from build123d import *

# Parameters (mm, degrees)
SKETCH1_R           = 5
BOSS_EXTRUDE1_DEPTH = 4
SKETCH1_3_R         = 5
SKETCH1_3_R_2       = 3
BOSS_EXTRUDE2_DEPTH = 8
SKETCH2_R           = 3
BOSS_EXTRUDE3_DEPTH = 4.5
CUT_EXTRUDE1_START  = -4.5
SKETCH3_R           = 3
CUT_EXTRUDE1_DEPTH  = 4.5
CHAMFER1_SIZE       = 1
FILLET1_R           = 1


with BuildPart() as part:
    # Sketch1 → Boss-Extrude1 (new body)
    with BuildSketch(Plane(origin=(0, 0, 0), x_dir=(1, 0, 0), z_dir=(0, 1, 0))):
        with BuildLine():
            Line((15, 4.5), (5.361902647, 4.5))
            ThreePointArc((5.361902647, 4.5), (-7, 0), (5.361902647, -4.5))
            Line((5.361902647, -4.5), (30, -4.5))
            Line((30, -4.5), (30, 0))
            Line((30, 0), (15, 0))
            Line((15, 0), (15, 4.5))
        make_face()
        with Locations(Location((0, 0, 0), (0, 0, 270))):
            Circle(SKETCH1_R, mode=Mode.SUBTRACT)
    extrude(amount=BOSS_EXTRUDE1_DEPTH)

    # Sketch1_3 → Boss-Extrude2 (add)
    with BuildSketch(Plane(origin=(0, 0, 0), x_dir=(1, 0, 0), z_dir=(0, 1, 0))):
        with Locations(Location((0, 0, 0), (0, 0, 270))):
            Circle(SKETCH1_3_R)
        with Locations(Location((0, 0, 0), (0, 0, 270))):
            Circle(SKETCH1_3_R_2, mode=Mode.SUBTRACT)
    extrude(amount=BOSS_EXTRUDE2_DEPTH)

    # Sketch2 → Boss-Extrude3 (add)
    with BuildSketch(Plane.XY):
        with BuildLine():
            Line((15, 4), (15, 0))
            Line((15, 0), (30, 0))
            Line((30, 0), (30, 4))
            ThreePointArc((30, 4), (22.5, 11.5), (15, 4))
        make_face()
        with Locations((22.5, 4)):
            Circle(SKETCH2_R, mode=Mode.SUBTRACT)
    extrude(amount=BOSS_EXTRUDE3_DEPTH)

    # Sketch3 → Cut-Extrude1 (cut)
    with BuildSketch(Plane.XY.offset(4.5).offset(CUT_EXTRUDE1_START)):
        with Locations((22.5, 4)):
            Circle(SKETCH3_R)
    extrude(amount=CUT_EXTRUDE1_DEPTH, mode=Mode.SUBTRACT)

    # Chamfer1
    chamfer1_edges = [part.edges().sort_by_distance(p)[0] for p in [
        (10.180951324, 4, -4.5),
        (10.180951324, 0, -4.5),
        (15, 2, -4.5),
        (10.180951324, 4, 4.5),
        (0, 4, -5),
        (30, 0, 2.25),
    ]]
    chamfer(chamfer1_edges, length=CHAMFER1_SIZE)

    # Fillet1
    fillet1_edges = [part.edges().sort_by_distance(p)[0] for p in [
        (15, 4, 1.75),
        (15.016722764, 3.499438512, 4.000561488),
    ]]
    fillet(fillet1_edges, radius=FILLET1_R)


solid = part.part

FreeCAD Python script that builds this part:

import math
import FreeCAD as App
import Part
import Sketcher


def edges_at(feature, points):
    """Names of the edges that pass closest to the given points."""
    edges = feature.Shape.Edges
    near = lambda p: min(range(len(edges)), key=lambda i: edges[i].distToShape(Part.Vertex(*p))[0])
    return sorted({f"Edge{near(p) + 1}" for p in points})

doc = App.newDocument("Part")
body = doc.addObject("PartDesign::Body", "Body")

# Sketch on XZ plane
sketch1 = body.newObject("Sketcher::SketchObject", "Sketch")
sketch1.AttachmentSupport = (doc.getObject("XZ_Plane"), [""])
sketch1.MapMode = "FlatFace"
sketch1.addGeometry([
    Part.LineSegment(App.Vector(15, -4.5, 0), App.Vector(5.4, -4.5, 0)),  # 0
    Part.ArcOfCircle(Part.Circle(App.Vector(0, 0, 0), App.Vector(0, 0, 1), 7), math.radians(40), math.radians(320)),  # 1
    Part.LineSegment(App.Vector(5.4, 4.5, 0), App.Vector(30, 4.5, 0)),  # 2
    Part.LineSegment(App.Vector(30, 4.5, 0), App.Vector(30, 0, 0)),  # 3
    Part.LineSegment(App.Vector(30, 0, 0), App.Vector(15, 0, 0)),  # 4
    Part.LineSegment(App.Vector(15, 0, 0), App.Vector(15, -4.5, 0)),  # 5
    Part.Circle(App.Vector(0, 0, 0), App.Vector(0, 0, 1), 5),  # 6
], False)
sketch1.addConstraint([
    Sketcher.Constraint("Coincident", 0, 2, 1, 2),
    Sketcher.Constraint("Coincident", 1, 1, 2, 1),
    Sketcher.Constraint("Coincident", 2, 2, 3, 1),
    Sketcher.Constraint("Coincident", 3, 2, 4, 1),
    Sketcher.Constraint("Coincident", 4, 2, 5, 1),
    Sketcher.Constraint("Coincident", 5, 2, 0, 1),
    Sketcher.Constraint("Horizontal", 0),
    Sketcher.Constraint("Horizontal", 2),
    Sketcher.Constraint("Vertical", 3),
    Sketcher.Constraint("Horizontal", 4),
    Sketcher.Constraint("Vertical", 5),
    Sketcher.Constraint("Coincident", 1, 3, -1, 1),
    Sketcher.Constraint("Coincident", 6, 3, -1, 1),
    Sketcher.Constraint("PointOnObject", 3, 2, -1),
    Sketcher.Constraint("Vertical", 0, 2, 1, 1),
    Sketcher.Constraint("Diameter", 6, 10.0),
    Sketcher.Constraint("Radius", 1, 7.0),
    Sketcher.Constraint("DistanceX", 4, 2, 4, 1, 15.0),
    Sketcher.Constraint("DistanceY", 3, 2, 3, 1, 4.5),
    Sketcher.Constraint("DistanceX", -1, 1, 2, 2, 30.0),
])
pad1 = body.newObject("PartDesign::Pad", "Pad")
pad1.Profile = sketch1
pad1.Length = 4
pad1.Reversed = True

# Sketch on XZ plane
sketch2 = body.newObject("Sketcher::SketchObject", "Sketch001")
sketch2.AttachmentSupport = (doc.getObject("XZ_Plane"), [""])
sketch2.MapMode = "FlatFace"
sketch2.addGeometry([
    Part.Circle(App.Vector(0, 0, 0), App.Vector(0, 0, 1), 5),
    Part.Circle(App.Vector(0, 0, 0), App.Vector(0, 0, 1), 3),
], False)
sketch2.addConstraint([
    Sketcher.Constraint("Coincident", 0, 3, -1, 1),
    Sketcher.Constraint("Coincident", 1, 3, -1, 1),
    Sketcher.Constraint("Diameter", 0, 10.0),
    Sketcher.Constraint("Diameter", 1, 6.0),
])
pad2 = body.newObject("PartDesign::Pad", "Pad001")
pad2.Profile = sketch2
pad2.Length = 8
pad2.Reversed = True

# Sketch on XY plane
sketch3 = body.newObject("Sketcher::SketchObject", "Sketch002")
sketch3.AttachmentSupport = (doc.getObject("XY_Plane"), [""])
sketch3.MapMode = "FlatFace"
sketch3.addGeometry([
    Part.LineSegment(App.Vector(15, 4, 0), App.Vector(15, 0, 0)),  # 0
    Part.LineSegment(App.Vector(15, 0, 0), App.Vector(30, 0, 0)),  # 1
    Part.LineSegment(App.Vector(30, 0, 0), App.Vector(30, 4, 0)),  # 2
    Part.ArcOfCircle(Part.Circle(App.Vector(22.5, 4, 0), App.Vector(0, 0, 1), 7.5), math.radians(0), math.radians(180)),  # 3
    Part.Circle(App.Vector(22.5, 4, 0), App.Vector(0, 0, 1), 3),  # 4
], False)
sketch3.addConstraint([
    Sketcher.Constraint("Coincident", 0, 2, 1, 1),
    Sketcher.Constraint("Coincident", 1, 2, 2, 1),
    Sketcher.Constraint("Tangent", 2, 2, 3, 1),
    Sketcher.Constraint("Tangent", 3, 2, 0, 1),
    Sketcher.Constraint("Vertical", 0),
    Sketcher.Constraint("Horizontal", 1),
    Sketcher.Constraint("Vertical", 2),
    Sketcher.Constraint("Coincident", 4, 3, 3, 3),
    Sketcher.Constraint("PointOnObject", 0, 2, -1),
    Sketcher.Constraint("Diameter", 4, 6.0),
    Sketcher.Constraint("Radius", 3, 7.5),
    Sketcher.Constraint("DistanceY", 0, 2, 0, 1, 4.0),
    Sketcher.Constraint("DistanceX", -1, 1, 0, 2, 15.0),
])
pad3 = body.newObject("PartDesign::Pad", "Pad002")
pad3.Profile = sketch3
pad3.Length = 4.5

# Sketch on XY plane
sketch4 = body.newObject("Sketcher::SketchObject", "Sketch003")
sketch4.AttachmentSupport = (doc.getObject("XY_Plane"), [""])
sketch4.MapMode = "FlatFace"
sketch4.addGeometry(Part.Circle(App.Vector(22.5, 4, 0), App.Vector(0, 0, 1), 3), False)
sketch4.addConstraint([
    Sketcher.Constraint("Diameter", 0, 6.0),
    Sketcher.Constraint("DistanceY", -1, 1, 0, 3, 4.0),
    Sketcher.Constraint("DistanceX", -1, 1, 0, 3, 22.5),
])
pocket1 = body.newObject("PartDesign::Pocket", "Pocket")
pocket1.Profile = sketch4
pocket1.Length = 4.5
pocket1.Reversed = True
doc.recompute()

chamfer = body.newObject("PartDesign::Chamfer", "Chamfer")
chamfer.Base = (pocket1, edges_at(pocket1, [
    (10.181, 4, -4.5),
    (10.181, 0, -4.5),
    (15, 2, -4.5),
    (10.181, 4, 4.5),
    (0, 4, -5),
    (30, 0, 2.25),
]))
chamfer.Size = 1
doc.recompute()

fillet = body.newObject("PartDesign::Fillet", "Fillet")
fillet.Base = (chamfer, edges_at(chamfer, [(15, 4, 1.75), (15.017, 3.499, 4.001)]))
fillet.Radius = 1

doc.recompute()
